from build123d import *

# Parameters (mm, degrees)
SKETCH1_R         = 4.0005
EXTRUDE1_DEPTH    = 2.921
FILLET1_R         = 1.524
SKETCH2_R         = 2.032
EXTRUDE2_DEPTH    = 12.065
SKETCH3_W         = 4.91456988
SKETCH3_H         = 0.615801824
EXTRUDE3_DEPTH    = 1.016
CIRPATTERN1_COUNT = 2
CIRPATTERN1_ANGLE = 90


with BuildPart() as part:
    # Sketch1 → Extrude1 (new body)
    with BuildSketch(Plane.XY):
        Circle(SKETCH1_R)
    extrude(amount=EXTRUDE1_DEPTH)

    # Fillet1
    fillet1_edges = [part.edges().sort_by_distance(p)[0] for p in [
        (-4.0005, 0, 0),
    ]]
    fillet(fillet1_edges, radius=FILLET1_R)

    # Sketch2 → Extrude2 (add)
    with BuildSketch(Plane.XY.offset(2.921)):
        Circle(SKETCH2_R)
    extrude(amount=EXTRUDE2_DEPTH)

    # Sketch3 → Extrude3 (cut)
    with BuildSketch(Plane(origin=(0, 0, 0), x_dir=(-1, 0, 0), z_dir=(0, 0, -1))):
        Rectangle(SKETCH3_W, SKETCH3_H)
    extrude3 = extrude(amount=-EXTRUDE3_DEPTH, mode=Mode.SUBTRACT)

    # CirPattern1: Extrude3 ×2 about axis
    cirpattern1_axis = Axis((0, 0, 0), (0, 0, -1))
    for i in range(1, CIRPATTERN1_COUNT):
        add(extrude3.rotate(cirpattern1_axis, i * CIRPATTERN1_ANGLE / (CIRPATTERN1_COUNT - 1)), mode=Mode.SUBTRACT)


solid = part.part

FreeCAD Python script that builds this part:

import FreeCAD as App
import Part
import Sketcher
from FreeCAD import Vector
Q = App.Units.Quantity


def edges_at(feature, points):
    """Names of the edges that pass closest to the given points."""
    edges = feature.Shape.Edges
    near = lambda p: min(range(len(edges)), key=lambda i: edges[i].distToShape(Part.Vertex(*p))[0])
    return sorted({f"Edge{near(p) + 1}" for p in points})


def add_polygon(sketch, points):
    """Adds a closed chain of lines whose ends are joined by coincident constraints."""
    first, n = sketch.GeometryCount, len(points)
    for a, b in zip(points, points[1:] + points[:1]):
        sketch.addGeometry(Part.LineSegment(App.Vector(*a, 0), App.Vector(*b, 0)), False)
    for i in range(n):
        sketch.addConstraint(Sketcher.Constraint("Coincident", first + i, 2, first + (i + 1) % n, 1))

doc = App.newDocument("Part")
params = doc.addObject("Spreadsheet::Sheet", "Params")
for row, (alias, value) in enumerate([
    ("sketch1_diameter", "0.315 in"),
    ("pad1_length", "0.115 in"),
    ("fillet_radius", "0.06 in"),
    ("sketch2_diameter", "0.16 in"),
    ("pad2_length", "0.475 in"),
    ("pocket1_length", "0.04 in"),
], start=1):
    params.set(f"A{row}", alias)
    params.set(f"B{row}", "=" + value)
    params.setAlias(f"B{row}", alias)

body = doc.addObject("PartDesign::Body", "Body")

sketch1 = body.newObject("Sketcher::SketchObject", "Sketch")
sketch1.AttachmentSupport = (doc.getObject("XY_Plane"), [""])
sketch1.MapMode = "FlatFace"
sketch1.addGeometry(Part.Circle(Vector(0, 0, 0), Vector(0, 0, 1), 4.0005), False)
sketch1.addConstraint([
    Sketcher.Constraint("Coincident", 0, 3, -1, 1),
    Sketcher.Constraint("Diameter", 0, Q("0.315 in")),
])
sketch1.setExpression("Constraints[1]", "Params.sketch1_diameter")
pad1 = body.newObject("PartDesign::Pad", "Pad")
pad1.Profile = sketch1
pad1.setExpression("Length", "Params.pad1_length")
doc.recompute()

fillet = body.newObject("PartDesign::Fillet", "Fillet")
fillet.Base = (pad1, edges_at(pad1, [(-4, 0, 0)]))
fillet.setExpression("Radius", "Params.fillet_radius")

sketch2 = body.newObject("Sketcher::SketchObject", "Sketch001")
sketch2.AttachmentSupport = (doc.getObject("XY_Plane"), [""])
sketch2.MapMode = "FlatFace"
sketch2.AttachmentOffset = App.Placement(Vector(0, 0, 0.115 * 25.4), App.Rotation())
sketch2.addGeometry(Part.Circle(Vector(0, 0, 0), Vector(0, 0, 1), 2.032), False)
sketch2.addConstraint([
    Sketcher.Constraint("Coincident", 0, 3, -1, 1),
    Sketcher.Constraint("Diameter", 0, Q("0.16 in")),
])
sketch2.setExpression("Constraints[1]", "Params.sketch2_diameter")
pad2 = body.newObject("PartDesign::Pad", "Pad001")
pad2.Profile = sketch2
pad2.setExpression("Length", "Params.pad2_length")

sketch3 = body.newObject("Sketcher::SketchObject", "Sketch002")
sketch3.AttachmentSupport = (doc.getObject("XY_Plane"), [""])
sketch3.MapMode = "FlatFace"
add_polygon(sketch3, [(2.457285, 0.307901), (2.457285, -0.307901), (-2.457285, -0.307901), (-2.457285, 0.307901)])
sketch3.addConstraint([
    Sketcher.Constraint("Vertical", 0),
    Sketcher.Constraint("Horizontal", 1),
    Sketcher.Constraint("Vertical", 2),
    Sketcher.Constraint("Horizontal", 3),
    Sketcher.Constraint("Symmetric", 0, 2, 2, 2, -1, 1),
    Sketcher.Constraint("DistanceY", 0, 2, 0, 1, 0.615802),
    Sketcher.Constraint("DistanceX", 1, 2, 1, 1, 4.91457),
])
pocket1 = body.newObject("PartDesign::Pocket", "Pocket")
pocket1.Profile = sketch3
pocket1.setExpression("Length", "Params.pocket1_length")
pocket1.Reversed = True
doc.recompute()

polarpattern = body.newObject("PartDesign::PolarPattern", "PolarPattern")
polarpattern.Originals = [pocket1]
polarpattern.Axis = (doc.getObject("Z_Axis"), [""])
polarpattern.Angle = 90
polarpattern.Occurrences = 2
polarpattern.Reversed = True
body.Tip = polarpattern

doc.recompute()
